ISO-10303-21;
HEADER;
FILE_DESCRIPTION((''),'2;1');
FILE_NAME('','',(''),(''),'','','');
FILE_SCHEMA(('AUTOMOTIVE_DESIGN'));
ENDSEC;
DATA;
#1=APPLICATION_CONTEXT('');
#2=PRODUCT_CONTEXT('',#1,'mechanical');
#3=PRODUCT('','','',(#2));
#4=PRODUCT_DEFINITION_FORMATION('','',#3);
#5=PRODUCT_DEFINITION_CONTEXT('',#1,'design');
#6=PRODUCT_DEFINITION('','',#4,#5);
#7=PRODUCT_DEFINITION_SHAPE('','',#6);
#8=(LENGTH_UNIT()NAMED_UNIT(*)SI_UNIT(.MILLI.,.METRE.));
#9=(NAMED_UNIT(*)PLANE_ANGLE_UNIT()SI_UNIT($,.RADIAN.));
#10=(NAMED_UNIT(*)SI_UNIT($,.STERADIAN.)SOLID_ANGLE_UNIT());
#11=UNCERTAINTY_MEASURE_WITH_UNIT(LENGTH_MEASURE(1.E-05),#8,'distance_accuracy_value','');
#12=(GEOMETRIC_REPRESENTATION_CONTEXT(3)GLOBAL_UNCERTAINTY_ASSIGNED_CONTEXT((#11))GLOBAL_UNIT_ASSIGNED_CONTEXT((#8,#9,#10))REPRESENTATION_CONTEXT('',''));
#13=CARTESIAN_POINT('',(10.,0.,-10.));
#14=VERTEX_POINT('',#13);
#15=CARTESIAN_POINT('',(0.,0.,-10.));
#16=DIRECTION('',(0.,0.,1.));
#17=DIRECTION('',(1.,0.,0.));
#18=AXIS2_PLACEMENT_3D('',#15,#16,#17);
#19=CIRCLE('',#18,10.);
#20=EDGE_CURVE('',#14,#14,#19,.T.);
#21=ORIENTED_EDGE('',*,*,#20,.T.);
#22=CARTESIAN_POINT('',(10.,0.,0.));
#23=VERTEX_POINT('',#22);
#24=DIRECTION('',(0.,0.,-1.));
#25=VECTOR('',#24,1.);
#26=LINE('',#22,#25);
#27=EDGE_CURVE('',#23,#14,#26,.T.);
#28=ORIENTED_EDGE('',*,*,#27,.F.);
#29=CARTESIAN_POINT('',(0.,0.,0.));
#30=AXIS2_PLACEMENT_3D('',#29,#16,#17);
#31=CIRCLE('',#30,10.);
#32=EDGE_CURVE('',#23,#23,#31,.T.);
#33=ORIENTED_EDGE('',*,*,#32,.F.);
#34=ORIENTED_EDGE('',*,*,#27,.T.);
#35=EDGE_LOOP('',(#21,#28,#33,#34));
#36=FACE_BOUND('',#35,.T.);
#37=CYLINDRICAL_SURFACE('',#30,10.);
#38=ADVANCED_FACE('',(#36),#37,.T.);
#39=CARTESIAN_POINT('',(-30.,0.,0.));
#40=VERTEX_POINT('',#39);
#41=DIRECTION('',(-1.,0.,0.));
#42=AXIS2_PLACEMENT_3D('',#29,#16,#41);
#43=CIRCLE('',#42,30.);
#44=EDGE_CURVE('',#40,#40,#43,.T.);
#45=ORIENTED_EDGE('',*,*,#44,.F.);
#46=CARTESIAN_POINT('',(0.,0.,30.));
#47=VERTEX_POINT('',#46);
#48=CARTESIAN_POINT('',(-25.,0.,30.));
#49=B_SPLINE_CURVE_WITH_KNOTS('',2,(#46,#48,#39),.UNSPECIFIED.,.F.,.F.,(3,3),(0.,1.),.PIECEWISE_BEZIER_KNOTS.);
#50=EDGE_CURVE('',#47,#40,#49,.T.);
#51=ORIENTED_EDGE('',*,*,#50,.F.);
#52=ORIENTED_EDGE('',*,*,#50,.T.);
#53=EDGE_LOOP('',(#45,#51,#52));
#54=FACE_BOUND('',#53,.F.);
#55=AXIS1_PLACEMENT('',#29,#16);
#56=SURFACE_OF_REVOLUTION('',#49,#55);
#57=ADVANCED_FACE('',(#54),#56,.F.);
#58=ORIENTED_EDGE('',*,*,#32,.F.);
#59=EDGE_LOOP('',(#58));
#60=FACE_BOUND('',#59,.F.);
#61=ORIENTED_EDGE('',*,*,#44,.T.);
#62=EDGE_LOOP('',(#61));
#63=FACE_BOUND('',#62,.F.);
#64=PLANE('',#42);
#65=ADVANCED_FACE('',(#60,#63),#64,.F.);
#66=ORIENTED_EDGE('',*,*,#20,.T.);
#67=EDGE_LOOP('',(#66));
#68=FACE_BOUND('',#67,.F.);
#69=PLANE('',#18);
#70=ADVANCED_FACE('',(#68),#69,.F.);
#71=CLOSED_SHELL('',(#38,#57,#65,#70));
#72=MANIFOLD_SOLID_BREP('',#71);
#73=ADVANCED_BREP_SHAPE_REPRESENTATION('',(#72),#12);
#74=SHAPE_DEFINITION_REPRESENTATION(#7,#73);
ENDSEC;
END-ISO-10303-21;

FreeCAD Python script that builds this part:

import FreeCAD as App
import Part
import Sketcher
from FreeCAD import Vector

doc = App.newDocument("Part")
body = doc.addObject("PartDesign::Body", "Body")

sketch1 = body.newObject("Sketcher::SketchObject", "Sketch")
sketch1.AttachmentSupport = (doc.getObject("XZ_Plane"), [""])
sketch1.MapMode = "FlatFace"
sketch1.addGeometry([
    Part.BSplineCurve([Vector(0, 30, 0), Vector(-25, 30, 0), Vector(-30, 0, 0)], [3, 3], [0, 1], False, 2, [1, 1, 1], False),
    Part.LineSegment(Vector(-30, 0, 0), Vector(0, 0, 0)),
    Part.LineSegment(Vector(0, 0, 0), Vector(0, 30, 0)),
], False)
sketch1.addConstraint([
    Sketcher.Constraint("Block", 0),
    Sketcher.Constraint("Coincident", 0, 2, 1, 1),
    Sketcher.Constraint("Coincident", 1, 2, 2, 1),
    Sketcher.Constraint("Coincident", 2, 2, 0, 1),
    Sketcher.Constraint("Horizontal", 1),
    Sketcher.Constraint("Vertical", 2),
])
revolution = body.newObject("PartDesign::Revolution", "Revolution")
revolution.Profile = sketch1
revolution.ReferenceAxis = (sketch1, ["V_Axis"])
revolution.Angle = 360

sketch2 = body.newObject("Sketcher::SketchObject", "Sketch001")
sketch2.AttachmentSupport = (doc.getObject("XY_Plane"), [""])
sketch2.MapMode = "FlatFace"
sketch2.addGeometry(Part.Circle(Vector(0, 0, 0), Vector(0, 0, 1), 10), False)
sketch2.addConstraint([
    Sketcher.Constraint("Coincident", 0, 3, -1, 1),
    Sketcher.Constraint("Diameter", 0, 20.0),
])
pad1 = body.newObject("PartDesign::Pad", "Pad")
pad1.Profile = sketch2
pad1.Length = 10
pad1.Reversed = True

doc.recompute()
